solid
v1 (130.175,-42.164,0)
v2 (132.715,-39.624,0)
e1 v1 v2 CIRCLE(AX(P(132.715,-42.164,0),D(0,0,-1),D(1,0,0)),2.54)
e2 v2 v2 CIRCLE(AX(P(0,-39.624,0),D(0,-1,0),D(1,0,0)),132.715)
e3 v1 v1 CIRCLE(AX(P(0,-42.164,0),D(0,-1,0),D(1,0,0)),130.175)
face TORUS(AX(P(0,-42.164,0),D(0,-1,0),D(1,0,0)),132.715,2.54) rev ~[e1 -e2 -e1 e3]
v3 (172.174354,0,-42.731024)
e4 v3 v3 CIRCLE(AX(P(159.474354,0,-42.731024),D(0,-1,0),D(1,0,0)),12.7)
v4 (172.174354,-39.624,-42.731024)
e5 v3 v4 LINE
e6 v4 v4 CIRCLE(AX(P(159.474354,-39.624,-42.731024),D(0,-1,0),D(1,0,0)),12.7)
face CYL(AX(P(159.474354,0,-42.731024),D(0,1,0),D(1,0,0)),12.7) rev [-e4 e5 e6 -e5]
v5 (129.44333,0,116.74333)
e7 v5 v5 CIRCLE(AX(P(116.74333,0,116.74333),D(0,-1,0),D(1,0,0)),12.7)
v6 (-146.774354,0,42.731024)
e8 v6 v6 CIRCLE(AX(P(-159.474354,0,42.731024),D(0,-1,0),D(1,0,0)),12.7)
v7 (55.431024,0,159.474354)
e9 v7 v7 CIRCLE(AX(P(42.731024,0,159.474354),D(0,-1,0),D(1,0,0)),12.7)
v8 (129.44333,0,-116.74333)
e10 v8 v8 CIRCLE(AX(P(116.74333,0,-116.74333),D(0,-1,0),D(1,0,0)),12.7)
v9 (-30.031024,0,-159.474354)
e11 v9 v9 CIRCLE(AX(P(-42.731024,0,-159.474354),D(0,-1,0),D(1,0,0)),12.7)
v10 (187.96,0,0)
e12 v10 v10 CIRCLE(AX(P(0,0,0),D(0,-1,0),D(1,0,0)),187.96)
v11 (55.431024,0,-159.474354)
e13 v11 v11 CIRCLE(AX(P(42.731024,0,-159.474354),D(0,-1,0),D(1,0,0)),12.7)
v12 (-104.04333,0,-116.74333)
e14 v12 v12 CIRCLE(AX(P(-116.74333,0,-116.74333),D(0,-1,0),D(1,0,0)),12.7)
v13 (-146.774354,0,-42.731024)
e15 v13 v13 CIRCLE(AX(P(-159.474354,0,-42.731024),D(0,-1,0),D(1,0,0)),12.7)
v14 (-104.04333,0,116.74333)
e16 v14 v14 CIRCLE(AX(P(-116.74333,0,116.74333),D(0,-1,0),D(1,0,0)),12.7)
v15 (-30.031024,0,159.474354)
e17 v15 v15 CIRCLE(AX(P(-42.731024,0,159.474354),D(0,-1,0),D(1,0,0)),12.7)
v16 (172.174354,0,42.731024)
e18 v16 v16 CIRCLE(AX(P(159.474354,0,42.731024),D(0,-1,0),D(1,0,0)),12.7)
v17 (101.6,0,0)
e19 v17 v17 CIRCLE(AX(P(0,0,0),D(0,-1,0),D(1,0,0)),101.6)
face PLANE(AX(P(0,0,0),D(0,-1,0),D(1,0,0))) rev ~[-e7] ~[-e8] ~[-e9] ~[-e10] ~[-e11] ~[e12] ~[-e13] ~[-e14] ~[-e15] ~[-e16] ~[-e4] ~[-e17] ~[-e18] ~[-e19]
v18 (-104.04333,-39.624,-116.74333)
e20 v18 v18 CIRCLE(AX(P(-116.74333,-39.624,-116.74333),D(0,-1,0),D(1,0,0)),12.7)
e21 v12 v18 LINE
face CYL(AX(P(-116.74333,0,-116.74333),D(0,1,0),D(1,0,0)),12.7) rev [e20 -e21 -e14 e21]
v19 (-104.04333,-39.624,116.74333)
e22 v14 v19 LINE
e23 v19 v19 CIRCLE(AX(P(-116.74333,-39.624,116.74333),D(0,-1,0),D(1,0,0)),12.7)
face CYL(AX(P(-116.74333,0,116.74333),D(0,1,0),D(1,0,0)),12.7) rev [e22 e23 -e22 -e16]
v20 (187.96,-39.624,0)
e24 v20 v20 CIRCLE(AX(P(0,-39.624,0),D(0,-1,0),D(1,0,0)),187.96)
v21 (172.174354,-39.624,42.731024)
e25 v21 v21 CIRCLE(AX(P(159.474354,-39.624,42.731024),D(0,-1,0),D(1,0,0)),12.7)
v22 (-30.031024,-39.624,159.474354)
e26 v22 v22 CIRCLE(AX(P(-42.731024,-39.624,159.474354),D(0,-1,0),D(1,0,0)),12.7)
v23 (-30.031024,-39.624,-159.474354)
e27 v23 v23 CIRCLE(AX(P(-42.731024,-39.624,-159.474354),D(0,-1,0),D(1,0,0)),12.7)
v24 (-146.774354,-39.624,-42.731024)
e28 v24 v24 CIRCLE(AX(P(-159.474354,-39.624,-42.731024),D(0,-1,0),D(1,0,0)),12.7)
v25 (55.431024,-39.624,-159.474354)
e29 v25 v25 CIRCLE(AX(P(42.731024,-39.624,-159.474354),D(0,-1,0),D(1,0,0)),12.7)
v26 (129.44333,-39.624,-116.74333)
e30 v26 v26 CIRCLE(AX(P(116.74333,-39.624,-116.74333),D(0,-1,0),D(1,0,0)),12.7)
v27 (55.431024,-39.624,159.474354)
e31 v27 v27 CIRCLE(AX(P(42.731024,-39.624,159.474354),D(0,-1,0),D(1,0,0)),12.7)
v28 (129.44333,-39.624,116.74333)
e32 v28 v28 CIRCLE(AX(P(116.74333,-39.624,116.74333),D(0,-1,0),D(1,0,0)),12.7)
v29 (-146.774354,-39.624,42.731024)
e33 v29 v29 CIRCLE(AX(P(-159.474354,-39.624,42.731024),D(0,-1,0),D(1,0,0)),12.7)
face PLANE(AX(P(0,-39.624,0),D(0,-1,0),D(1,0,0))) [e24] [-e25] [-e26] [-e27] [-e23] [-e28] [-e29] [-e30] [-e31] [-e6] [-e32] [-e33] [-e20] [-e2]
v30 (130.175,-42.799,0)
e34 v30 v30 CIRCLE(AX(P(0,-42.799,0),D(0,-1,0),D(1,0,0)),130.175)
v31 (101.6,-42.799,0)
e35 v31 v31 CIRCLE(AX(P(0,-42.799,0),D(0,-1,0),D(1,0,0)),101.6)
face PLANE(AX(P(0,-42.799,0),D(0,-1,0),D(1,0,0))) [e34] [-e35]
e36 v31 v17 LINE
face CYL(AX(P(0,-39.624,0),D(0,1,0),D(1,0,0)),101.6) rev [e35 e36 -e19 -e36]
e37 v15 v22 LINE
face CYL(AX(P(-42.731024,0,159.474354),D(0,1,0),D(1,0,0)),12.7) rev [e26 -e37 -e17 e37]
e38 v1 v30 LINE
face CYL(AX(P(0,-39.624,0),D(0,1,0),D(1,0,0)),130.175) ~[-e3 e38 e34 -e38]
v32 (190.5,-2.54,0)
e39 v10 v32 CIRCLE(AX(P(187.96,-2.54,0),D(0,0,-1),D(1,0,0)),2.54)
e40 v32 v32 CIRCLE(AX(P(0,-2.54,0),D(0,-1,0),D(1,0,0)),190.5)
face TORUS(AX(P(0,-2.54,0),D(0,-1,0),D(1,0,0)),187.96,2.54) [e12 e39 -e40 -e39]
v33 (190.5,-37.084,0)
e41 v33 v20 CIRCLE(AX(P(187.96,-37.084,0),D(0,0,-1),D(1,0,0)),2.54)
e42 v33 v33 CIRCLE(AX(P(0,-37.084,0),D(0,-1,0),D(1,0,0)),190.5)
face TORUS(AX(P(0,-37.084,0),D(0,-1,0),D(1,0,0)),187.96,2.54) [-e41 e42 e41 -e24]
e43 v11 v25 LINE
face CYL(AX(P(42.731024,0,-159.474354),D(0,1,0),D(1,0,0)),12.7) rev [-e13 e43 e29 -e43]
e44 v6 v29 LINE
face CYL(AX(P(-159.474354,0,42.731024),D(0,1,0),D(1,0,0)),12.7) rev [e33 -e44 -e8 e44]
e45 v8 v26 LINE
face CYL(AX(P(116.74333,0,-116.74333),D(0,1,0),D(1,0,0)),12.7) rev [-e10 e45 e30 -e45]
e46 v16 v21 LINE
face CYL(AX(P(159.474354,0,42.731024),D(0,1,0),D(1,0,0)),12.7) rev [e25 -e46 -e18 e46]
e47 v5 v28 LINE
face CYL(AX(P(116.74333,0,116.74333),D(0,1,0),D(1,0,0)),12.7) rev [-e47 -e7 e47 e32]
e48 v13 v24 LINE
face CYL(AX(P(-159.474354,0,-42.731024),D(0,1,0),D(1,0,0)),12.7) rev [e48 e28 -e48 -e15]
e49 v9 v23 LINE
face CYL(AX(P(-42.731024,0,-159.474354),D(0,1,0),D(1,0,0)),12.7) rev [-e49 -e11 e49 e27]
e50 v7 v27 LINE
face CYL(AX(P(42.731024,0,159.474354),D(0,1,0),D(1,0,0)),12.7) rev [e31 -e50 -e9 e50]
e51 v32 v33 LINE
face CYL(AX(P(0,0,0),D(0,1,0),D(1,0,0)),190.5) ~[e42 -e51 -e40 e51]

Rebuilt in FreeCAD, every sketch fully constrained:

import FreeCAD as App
import Part
import Sketcher
from FreeCAD import Vector
Q = App.Units.Quantity


def edges_at(feature, points):
    """Names of the edges that pass closest to the given points."""
    edges = feature.Shape.Edges
    near = lambda p: min(range(len(edges)), key=lambda i: edges[i].distToShape(Part.Vertex(*p))[0])
    return sorted({f"Edge{near(p) + 1}" for p in points})

doc = App.newDocument("Part")
body = doc.addObject("PartDesign::Body", "Body")

# Sketch on XZ plane
sketch1 = body.newObject("Sketcher::SketchObject", "Sketch")
sketch1.AttachmentSupport = (doc.getObject("XZ_Plane"), [""])
sketch1.MapMode = "FlatFace"
sketch1.addGeometry(Part.Circle(Vector(0, 0, 0), Vector(0, 0, 1), 190), False)
sketch1.addGeometry(Part.Circle(Vector(-117, -117, 0), Vector(0, 0, 1), 13), False)
sketch1.addGeometry(Part.Circle(Vector(-43, -159, 0), Vector(0, 0, 1), 13), False)
sketch1.addGeometry(Part.Circle(Vector(-159, -43, 0), Vector(0, 0, 1), 13), False)
sketch1.addGeometry(Part.Circle(Vector(43, -159, 0), Vector(0, 0, 1), 13), False)
sketch1.addGeometry(Part.Circle(Vector(117, -117, 0), Vector(0, 0, 1), 13), False)
sketch1.addGeometry(Part.Circle(Vector(159, -43, 0), Vector(0, 0, 1), 13), False)
sketch1.addGeometry(Part.Circle(Vector(-159, 43, 0), Vector(0, 0, 1), 13), False)
sketch1.addGeometry(Part.Circle(Vector(-117, 117, 0), Vector(0, 0, 1), 13), False)
sketch1.addGeometry(Part.Circle(Vector(-43, 159, 0), Vector(0, 0, 1), 13), False)
sketch1.addGeometry(Part.Circle(Vector(0, 0, 0), Vector(0, 0, 1), 102), False)
sketch1.addGeometry(Part.Circle(Vector(159, 43, 0), Vector(0, 0, 1), 13), False)
sketch1.addGeometry(Part.Circle(Vector(43, 159, 0), Vector(0, 0, 1), 13), False)
sketch1.addGeometry(Part.Circle(Vector(117, 117, 0), Vector(0, 0, 1), 13), False)
sketch1.addConstraint(Sketcher.Constraint("Coincident", 0, 3, -1, 1))
sketch1.addConstraint(Sketcher.Constraint("Coincident", 10, 3, -1, 1))
sketch1.addConstraint(Sketcher.Constraint("Equal", 1, 2))
sketch1.addConstraint(Sketcher.Constraint("Equal", 2, 3))
sketch1.addConstraint(Sketcher.Constraint("Equal", 3, 4))
sketch1.addConstraint(Sketcher.Constraint("Equal", 4, 5))
sketch1.addConstraint(Sketcher.Constraint("Equal", 5, 6))
sketch1.addConstraint(Sketcher.Constraint("Equal", 6, 7))
sketch1.addConstraint(Sketcher.Constraint("Equal", 7, 8))
sketch1.addConstraint(Sketcher.Constraint("Equal", 8, 9))
sketch1.addConstraint(Sketcher.Constraint("Equal", 9, 11))
sketch1.addConstraint(Sketcher.Constraint("Equal", 11, 12))
sketch1.addConstraint(Sketcher.Constraint("Equal", 12, 13))
sketch1.addConstraint(Sketcher.Constraint("Symmetric", 6, 3, 7, 3, -1, 1))
sketch1.addConstraint(Sketcher.Constraint("Symmetric", 5, 3, 8, 3, -1, 1))
sketch1.addConstraint(Sketcher.Constraint("Symmetric", 4, 3, 9, 3, -1, 1))
sketch1.addConstraint(Sketcher.Constraint("Symmetric", 3, 3, 11, 3, -1, 1))
sketch1.addConstraint(Sketcher.Constraint("Symmetric", 2, 3, 12, 3, -1, 1))
sketch1.addConstraint(Sketcher.Constraint("Symmetric", 1, 3, 13, 3, -1, 1))
sketch1.addConstraint(Sketcher.Constraint("Symmetric", 2, 3, 4, 3, -2))
sketch1.addConstraint(Sketcher.Constraint("Symmetric", 1, 3, 5, 3, -2))
sketch1.addConstraint(Sketcher.Constraint("Symmetric", 3, 3, 6, 3, -2))
sketch1.addConstraint(Sketcher.Constraint("Diameter", 0, Q("15 in")))
sketch1.addConstraint(Sketcher.Constraint("Diameter", 1, Q("1 in")))
sketch1.addConstraint(Sketcher.Constraint("Diameter", 10, Q("8 in")))
sketch1.addConstraint(Sketcher.Constraint("DistanceX", 1, 3, -1, 1, 116.74333))
sketch1.addConstraint(Sketcher.Constraint("DistanceY", 1, 3, -1, 1, 116.74333))
sketch1.addConstraint(Sketcher.Constraint("DistanceX", 3, 3, 2, 3, 116.74333))
sketch1.addConstraint(Sketcher.Constraint("DistanceY", 2, 3, 3, 3, 116.74333))
sketch1.addConstraint(Sketcher.Constraint("DistanceX", 3, 3, 4, 3, 202.205378))
sketch1.addConstraint(Sketcher.Constraint("DistanceY", 2, 3, 7, 3, 202.205378))
pad1 = body.newObject("PartDesign::Pad", "Pad")
pad1.Profile = sketch1
pad1.Length = Q("1.56 in")

# Sketch on XZ plane
sketch2 = body.newObject("Sketcher::SketchObject", "Sketch001")
sketch2.AttachmentSupport = (doc.getObject("XZ_Plane"), [""])
sketch2.MapMode = "FlatFace"
sketch2.AttachmentOffset = App.Placement(Vector(0, 0, 1.56 * 25.4), App.Rotation())
sketch2.addGeometry(Part.Circle(Vector(0, 0, 0), Vector(0, 0, 1), 130), False)
sketch2.addGeometry(Part.Circle(Vector(0, 0, 0), Vector(0, 0, 1), 102), False)
sketch2.addConstraint(Sketcher.Constraint("Coincident", 0, 3, -1, 1))
sketch2.addConstraint(Sketcher.Constraint("Coincident", 1, 3, -1, 1))
sketch2.addConstraint(Sketcher.Constraint("Diameter", 1, Q("8 in")))
sketch2.addConstraint(Sketcher.Constraint("Diameter", 0, Q("10.25 in")))
pad2 = body.newObject("PartDesign::Pad", "Pad001")
pad2.Profile = sketch2
pad2.Length = Q("0.125 in")
doc.recompute()

fillet = body.newObject("PartDesign::Fillet", "Fillet")
fillet.Base = (pad2, edges_at(pad2, [(-190.5, -39.624, 0), (-190.5, 0, 0), (-130.175, -39.624, 0)]))
fillet.Radius = Q("0.1 in")

doc.recompute()
